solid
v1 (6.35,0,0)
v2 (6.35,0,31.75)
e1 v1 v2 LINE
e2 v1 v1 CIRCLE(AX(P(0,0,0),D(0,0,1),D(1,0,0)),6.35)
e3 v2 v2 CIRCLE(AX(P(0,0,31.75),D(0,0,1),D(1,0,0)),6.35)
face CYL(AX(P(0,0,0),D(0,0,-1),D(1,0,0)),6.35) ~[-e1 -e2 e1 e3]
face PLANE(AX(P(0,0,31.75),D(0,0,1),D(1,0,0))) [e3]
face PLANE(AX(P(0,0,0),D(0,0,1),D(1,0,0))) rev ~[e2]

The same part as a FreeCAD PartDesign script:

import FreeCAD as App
import Part
import Sketcher
from FreeCAD import Vector
Q = App.Units.Quantity

doc = App.newDocument("Part")
body = doc.addObject("PartDesign::Body", "Body")

# Sketch on XY plane
sketch1 = body.newObject("Sketcher::SketchObject", "Sketch")
sketch1.AttachmentSupport = (doc.getObject("XY_Plane"), [""])
sketch1.MapMode = "FlatFace"
sketch1.addGeometry(Part.Circle(Vector(0, 0, 0), Vector(0, 0, 1), 6), False)
sketch1.addConstraint(Sketcher.Constraint("Coincident", 0, 3, -1, 1))
sketch1.addConstraint(Sketcher.Constraint("Diameter", 0, Q("0.5 in")))
pad1 = body.newObject("PartDesign::Pad", "Pad")
pad1.Profile = sketch1
pad1.Length = Q("1.25 in")

doc.recompute()
